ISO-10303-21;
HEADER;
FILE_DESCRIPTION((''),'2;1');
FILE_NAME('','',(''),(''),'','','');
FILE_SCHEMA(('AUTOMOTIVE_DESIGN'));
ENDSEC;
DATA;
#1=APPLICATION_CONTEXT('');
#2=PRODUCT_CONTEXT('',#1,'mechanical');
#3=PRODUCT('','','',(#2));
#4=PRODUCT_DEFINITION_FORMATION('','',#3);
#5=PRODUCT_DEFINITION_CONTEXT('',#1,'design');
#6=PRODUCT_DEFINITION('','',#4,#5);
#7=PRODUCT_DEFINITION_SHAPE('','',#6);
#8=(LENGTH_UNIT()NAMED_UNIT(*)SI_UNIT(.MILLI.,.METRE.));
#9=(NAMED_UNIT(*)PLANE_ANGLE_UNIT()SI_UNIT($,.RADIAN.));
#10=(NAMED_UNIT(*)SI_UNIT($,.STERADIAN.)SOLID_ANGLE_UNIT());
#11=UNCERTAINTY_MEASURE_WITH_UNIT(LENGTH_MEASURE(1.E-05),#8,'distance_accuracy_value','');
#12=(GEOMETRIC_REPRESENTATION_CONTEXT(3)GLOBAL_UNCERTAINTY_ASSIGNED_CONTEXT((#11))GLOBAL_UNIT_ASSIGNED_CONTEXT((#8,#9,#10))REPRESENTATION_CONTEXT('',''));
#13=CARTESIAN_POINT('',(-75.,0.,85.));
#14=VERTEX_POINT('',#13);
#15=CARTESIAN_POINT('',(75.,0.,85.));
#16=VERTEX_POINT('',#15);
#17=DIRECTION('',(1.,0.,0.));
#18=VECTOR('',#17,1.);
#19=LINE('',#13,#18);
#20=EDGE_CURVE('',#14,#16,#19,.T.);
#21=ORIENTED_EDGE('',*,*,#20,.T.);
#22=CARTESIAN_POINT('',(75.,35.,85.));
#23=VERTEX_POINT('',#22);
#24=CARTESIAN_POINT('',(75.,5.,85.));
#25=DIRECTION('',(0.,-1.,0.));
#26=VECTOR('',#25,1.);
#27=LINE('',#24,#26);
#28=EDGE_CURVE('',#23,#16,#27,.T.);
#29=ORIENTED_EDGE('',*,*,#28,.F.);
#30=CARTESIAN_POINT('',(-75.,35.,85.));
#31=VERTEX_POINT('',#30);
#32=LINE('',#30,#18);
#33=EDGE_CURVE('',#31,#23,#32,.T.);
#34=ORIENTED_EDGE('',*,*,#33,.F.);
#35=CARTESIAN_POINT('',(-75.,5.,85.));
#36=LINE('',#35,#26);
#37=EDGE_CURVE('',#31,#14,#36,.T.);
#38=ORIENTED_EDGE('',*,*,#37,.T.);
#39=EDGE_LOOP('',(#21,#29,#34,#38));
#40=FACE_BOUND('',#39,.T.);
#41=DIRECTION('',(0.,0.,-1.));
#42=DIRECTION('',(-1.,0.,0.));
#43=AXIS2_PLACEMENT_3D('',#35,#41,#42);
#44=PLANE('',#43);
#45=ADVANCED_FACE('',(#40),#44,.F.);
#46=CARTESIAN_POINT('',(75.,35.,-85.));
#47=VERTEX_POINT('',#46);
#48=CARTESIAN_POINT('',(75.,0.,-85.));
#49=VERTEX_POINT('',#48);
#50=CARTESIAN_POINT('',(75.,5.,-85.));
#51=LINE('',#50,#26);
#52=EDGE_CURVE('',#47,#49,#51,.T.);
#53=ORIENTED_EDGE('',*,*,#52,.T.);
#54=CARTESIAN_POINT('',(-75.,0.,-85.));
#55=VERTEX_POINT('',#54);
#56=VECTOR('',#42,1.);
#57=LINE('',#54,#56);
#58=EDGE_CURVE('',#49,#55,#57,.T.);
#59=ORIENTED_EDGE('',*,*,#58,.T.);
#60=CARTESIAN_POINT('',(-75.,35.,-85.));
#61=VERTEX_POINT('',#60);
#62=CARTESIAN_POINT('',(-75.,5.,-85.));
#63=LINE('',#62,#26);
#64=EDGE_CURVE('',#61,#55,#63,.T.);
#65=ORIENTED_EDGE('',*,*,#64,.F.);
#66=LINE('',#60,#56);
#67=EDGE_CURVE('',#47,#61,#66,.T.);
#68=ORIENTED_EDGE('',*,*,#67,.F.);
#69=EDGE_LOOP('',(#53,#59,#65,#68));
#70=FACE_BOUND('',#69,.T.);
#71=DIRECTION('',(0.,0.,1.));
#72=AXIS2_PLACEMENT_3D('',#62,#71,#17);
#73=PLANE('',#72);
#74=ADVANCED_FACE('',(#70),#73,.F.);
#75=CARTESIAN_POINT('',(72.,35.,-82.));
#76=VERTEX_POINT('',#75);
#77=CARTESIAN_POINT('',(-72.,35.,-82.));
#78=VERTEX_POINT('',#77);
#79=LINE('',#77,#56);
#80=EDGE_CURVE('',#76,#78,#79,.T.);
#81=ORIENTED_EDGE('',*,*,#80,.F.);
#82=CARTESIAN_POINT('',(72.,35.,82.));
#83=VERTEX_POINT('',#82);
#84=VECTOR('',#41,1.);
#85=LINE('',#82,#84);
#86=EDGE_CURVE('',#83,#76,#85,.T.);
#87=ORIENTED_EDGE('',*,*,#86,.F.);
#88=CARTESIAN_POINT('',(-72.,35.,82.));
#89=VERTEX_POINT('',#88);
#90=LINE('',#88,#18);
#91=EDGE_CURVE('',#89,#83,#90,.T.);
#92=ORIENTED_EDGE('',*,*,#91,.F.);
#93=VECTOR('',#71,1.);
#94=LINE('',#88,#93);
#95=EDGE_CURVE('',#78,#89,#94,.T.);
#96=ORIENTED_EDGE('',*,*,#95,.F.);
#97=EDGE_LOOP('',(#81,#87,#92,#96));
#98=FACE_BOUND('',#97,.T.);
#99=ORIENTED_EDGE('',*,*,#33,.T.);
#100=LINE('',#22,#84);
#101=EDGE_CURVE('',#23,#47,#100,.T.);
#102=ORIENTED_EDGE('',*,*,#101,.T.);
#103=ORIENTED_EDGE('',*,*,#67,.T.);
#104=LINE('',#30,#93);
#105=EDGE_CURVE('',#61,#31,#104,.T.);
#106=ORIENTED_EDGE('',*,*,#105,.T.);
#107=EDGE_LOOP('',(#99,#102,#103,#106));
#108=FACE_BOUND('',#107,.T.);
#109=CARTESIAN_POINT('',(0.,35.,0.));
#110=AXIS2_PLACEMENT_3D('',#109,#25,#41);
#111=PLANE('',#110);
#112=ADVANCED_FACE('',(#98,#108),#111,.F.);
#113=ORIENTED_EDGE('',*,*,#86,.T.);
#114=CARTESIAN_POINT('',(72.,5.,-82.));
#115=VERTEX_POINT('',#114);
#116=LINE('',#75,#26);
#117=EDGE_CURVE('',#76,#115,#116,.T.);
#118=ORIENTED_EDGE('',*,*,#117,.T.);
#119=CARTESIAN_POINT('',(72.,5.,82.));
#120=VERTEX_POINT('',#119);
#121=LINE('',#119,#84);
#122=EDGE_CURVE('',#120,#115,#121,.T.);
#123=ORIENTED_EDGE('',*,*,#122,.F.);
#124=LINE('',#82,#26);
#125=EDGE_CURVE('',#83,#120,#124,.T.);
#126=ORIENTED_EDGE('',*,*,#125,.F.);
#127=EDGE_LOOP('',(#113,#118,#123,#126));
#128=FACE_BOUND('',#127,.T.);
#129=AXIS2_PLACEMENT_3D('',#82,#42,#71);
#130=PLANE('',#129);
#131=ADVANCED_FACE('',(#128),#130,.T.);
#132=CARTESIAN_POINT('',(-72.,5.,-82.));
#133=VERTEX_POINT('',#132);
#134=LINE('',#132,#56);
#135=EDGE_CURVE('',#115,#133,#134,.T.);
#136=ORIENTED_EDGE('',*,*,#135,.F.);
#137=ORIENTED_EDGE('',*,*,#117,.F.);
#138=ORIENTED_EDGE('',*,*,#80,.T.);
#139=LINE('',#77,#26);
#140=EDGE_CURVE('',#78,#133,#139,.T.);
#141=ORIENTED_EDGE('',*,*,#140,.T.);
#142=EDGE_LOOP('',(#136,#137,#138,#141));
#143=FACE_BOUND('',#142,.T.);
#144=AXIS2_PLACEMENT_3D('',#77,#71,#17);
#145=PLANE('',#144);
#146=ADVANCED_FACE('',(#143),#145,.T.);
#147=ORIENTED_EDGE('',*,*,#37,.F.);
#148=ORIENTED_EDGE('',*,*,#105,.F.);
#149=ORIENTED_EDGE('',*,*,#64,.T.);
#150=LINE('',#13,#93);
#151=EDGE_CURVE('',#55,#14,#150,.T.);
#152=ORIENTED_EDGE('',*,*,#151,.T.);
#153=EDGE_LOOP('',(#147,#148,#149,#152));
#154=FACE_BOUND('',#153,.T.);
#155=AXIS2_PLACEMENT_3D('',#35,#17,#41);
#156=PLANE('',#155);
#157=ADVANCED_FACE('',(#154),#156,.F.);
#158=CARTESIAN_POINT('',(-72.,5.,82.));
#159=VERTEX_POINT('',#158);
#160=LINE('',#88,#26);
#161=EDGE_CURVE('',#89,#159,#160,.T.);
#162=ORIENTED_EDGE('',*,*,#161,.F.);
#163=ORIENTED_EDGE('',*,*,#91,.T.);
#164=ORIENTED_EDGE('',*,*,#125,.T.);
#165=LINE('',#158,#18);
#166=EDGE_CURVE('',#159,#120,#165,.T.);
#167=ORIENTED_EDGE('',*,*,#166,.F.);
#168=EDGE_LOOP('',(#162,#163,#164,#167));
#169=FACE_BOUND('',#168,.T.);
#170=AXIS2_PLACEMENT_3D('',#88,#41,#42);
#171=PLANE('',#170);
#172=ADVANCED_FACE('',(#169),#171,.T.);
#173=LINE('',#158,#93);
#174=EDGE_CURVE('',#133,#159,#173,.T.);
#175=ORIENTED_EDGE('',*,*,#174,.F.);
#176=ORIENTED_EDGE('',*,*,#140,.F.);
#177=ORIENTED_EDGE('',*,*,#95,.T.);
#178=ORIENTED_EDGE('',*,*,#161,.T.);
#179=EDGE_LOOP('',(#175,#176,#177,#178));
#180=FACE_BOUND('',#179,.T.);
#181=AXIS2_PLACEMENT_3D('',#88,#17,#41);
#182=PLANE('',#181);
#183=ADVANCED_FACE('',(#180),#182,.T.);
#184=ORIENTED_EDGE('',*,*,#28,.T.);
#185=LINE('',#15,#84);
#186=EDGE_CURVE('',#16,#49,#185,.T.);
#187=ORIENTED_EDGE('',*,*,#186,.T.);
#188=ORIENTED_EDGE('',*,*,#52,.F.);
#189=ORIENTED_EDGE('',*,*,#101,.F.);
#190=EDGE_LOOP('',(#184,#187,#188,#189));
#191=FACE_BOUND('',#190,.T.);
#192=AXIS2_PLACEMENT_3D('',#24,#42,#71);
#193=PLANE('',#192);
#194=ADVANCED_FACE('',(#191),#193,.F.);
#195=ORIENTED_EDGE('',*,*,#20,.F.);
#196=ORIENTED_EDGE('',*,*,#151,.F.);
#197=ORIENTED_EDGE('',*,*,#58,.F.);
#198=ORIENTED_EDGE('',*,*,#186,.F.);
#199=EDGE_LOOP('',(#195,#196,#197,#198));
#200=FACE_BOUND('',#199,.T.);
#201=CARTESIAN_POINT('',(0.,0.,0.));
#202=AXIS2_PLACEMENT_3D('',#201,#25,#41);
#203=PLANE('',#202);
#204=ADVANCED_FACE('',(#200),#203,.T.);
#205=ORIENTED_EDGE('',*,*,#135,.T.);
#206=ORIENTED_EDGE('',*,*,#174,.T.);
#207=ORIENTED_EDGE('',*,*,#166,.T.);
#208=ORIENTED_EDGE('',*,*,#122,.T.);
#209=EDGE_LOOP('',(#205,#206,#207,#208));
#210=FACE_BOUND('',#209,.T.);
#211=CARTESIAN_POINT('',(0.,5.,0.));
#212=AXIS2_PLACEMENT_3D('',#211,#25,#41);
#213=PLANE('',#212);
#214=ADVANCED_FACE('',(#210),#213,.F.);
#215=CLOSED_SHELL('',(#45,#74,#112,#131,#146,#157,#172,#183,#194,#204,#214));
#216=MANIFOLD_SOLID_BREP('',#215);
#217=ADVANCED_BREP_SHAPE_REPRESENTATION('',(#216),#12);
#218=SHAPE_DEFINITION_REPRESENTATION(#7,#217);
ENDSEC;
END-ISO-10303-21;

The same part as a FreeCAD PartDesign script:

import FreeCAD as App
import Part
import Sketcher
Q = App.Units.Quantity

doc = App.newDocument("Part")
params = doc.addObject("Spreadsheet::Sheet", "Params")
for row, (alias, value) in enumerate([
    ("sketch1_width", "150 mm"),
    ("sketch1_height", "170 mm"),
    ("pad1_length", "5 mm"),
    ("sketch2_width", "150 mm"),
    ("sketch2_width2", "144 mm"),
    ("sketch2_height", "170 mm"),
    ("sketch2_height2", "164 mm"),
    ("pad2_length", "30 mm"),
], start=1):
    params.set(f"A{row}", alias)
    params.set(f"B{row}", "=" + value)
    params.setAlias(f"B{row}", alias)

body = doc.addObject("PartDesign::Body", "Body")

# Sketch on XZ plane
sketch1 = doc.addObject("Sketcher::SketchObject", "Sketch")
body.addObject(sketch1)
sketch1.AttachmentSupport = (doc.XZ_Plane, [""])
sketch1.MapMode = "FlatFace"
sketch1.addGeometry(Part.LineSegment(App.Vector(-75, -85, 0), App.Vector(-75, 85, 0)), False)
sketch1.addGeometry(Part.LineSegment(App.Vector(-75, 85, 0), App.Vector(75, 85, 0)), False)
sketch1.addGeometry(Part.LineSegment(App.Vector(75, 85, 0), App.Vector(75, -85, 0)), False)
sketch1.addGeometry(Part.LineSegment(App.Vector(75, -85, 0), App.Vector(-75, -85, 0)), False)
sketch1.addConstraint(Sketcher.Constraint("Coincident", 0, 2, 1, 1))
sketch1.addConstraint(Sketcher.Constraint("Coincident", 1, 2, 2, 1))
sketch1.addConstraint(Sketcher.Constraint("Coincident", 2, 2, 3, 1))
sketch1.addConstraint(Sketcher.Constraint("Coincident", 3, 2, 0, 1))
sketch1.addConstraint(Sketcher.Constraint("Vertical", 0))
sketch1.addConstraint(Sketcher.Constraint("Horizontal", 1))
sketch1.addConstraint(Sketcher.Constraint("Vertical", 2))
sketch1.addConstraint(Sketcher.Constraint("Horizontal", 3))
sketch1.addConstraint(Sketcher.Constraint("Symmetric", 0, 2, 2, 2, -1, 1))
sketch1.addConstraint(Sketcher.Constraint("DistanceX", 1, 1, 1, 2, Q("150 mm")))
sketch1.addConstraint(Sketcher.Constraint("DistanceY", 0, 1, 0, 2, Q("170 mm")))
sketch1.setExpression("Constraints[9]", "Params.sketch1_width")
sketch1.setExpression("Constraints[10]", "Params.sketch1_height")
pad1 = doc.addObject("PartDesign::Pad", "Pad")
body.addObject(pad1)
pad1.Profile = sketch1
pad1.setExpression("Length", "Params.pad1_length")
pad1.Reversed = True

# Sketch on XZ plane
sketch2 = doc.addObject("Sketcher::SketchObject", "Sketch001")
body.addObject(sketch2)
sketch2.AttachmentSupport = (doc.XZ_Plane, [""])
sketch2.MapMode = "FlatFace"
sketch2.AttachmentOffset = App.Placement(App.Vector(0, 0, -5), App.Rotation())
sketch2.addGeometry(Part.LineSegment(App.Vector(-75, -85, 0), App.Vector(-75, 85, 0)), False)
sketch2.addGeometry(Part.LineSegment(App.Vector(-75, 85, 0), App.Vector(75, 85, 0)), False)
sketch2.addGeometry(Part.LineSegment(App.Vector(75, 85, 0), App.Vector(75, -85, 0)), False)
sketch2.addGeometry(Part.LineSegment(App.Vector(75, -85, 0), App.Vector(-75, -85, 0)), False)
sketch2.addGeometry(Part.LineSegment(App.Vector(72, 82, 0), App.Vector(-72, 82, 0)), False)
sketch2.addGeometry(Part.LineSegment(App.Vector(-72, 82, 0), App.Vector(-72, -82, 0)), False)
sketch2.addGeometry(Part.LineSegment(App.Vector(-72, -82, 0), App.Vector(72, -82, 0)), False)
sketch2.addGeometry(Part.LineSegment(App.Vector(72, -82, 0), App.Vector(72, 82, 0)), False)
sketch2.addConstraint(Sketcher.Constraint("Coincident", 0, 2, 1, 1))
sketch2.addConstraint(Sketcher.Constraint("Coincident", 1, 2, 2, 1))
sketch2.addConstraint(Sketcher.Constraint("Coincident", 2, 2, 3, 1))
sketch2.addConstraint(Sketcher.Constraint("Coincident", 3, 2, 0, 1))
sketch2.addConstraint(Sketcher.Constraint("Coincident", 4, 2, 5, 1))
sketch2.addConstraint(Sketcher.Constraint("Coincident", 5, 2, 6, 1))
sketch2.addConstraint(Sketcher.Constraint("Coincident", 6, 2, 7, 1))
sketch2.addConstraint(Sketcher.Constraint("Coincident", 7, 2, 4, 1))
sketch2.addConstraint(Sketcher.Constraint("Vertical", 0))
sketch2.addConstraint(Sketcher.Constraint("Horizontal", 1))
sketch2.addConstraint(Sketcher.Constraint("Vertical", 2))
sketch2.addConstraint(Sketcher.Constraint("Horizontal", 3))
sketch2.addConstraint(Sketcher.Constraint("Horizontal", 4))
sketch2.addConstraint(Sketcher.Constraint("Vertical", 5))
sketch2.addConstraint(Sketcher.Constraint("Horizontal", 6))
sketch2.addConstraint(Sketcher.Constraint("Vertical", 7))
sketch2.addConstraint(Sketcher.Constraint("Symmetric", 0, 2, 2, 2, -1, 1))
sketch2.addConstraint(Sketcher.Constraint("Symmetric", 4, 2, 6, 2, -1, 1))
sketch2.addConstraint(Sketcher.Constraint("DistanceX", 1, 1, 1, 2, Q("150 mm")))
sketch2.addConstraint(Sketcher.Constraint("DistanceX", 4, 2, 4, 1, Q("144 mm")))
sketch2.addConstraint(Sketcher.Constraint("DistanceY", 0, 1, 0, 2, Q("170 mm")))
sketch2.addConstraint(Sketcher.Constraint("DistanceY", 5, 2, 5, 1, Q("164 mm")))
sketch2.setExpression("Constraints[18]", "Params.sketch2_width")
sketch2.setExpression("Constraints[19]", "Params.sketch2_width2")
sketch2.setExpression("Constraints[20]", "Params.sketch2_height")
sketch2.setExpression("Constraints[21]", "Params.sketch2_height2")
pad2 = doc.addObject("PartDesign::Pad", "Pad001")
body.addObject(pad2)
pad2.Profile = sketch2
pad2.setExpression("Length", "Params.pad2_length")
pad2.Reversed = True

doc.recompute()
